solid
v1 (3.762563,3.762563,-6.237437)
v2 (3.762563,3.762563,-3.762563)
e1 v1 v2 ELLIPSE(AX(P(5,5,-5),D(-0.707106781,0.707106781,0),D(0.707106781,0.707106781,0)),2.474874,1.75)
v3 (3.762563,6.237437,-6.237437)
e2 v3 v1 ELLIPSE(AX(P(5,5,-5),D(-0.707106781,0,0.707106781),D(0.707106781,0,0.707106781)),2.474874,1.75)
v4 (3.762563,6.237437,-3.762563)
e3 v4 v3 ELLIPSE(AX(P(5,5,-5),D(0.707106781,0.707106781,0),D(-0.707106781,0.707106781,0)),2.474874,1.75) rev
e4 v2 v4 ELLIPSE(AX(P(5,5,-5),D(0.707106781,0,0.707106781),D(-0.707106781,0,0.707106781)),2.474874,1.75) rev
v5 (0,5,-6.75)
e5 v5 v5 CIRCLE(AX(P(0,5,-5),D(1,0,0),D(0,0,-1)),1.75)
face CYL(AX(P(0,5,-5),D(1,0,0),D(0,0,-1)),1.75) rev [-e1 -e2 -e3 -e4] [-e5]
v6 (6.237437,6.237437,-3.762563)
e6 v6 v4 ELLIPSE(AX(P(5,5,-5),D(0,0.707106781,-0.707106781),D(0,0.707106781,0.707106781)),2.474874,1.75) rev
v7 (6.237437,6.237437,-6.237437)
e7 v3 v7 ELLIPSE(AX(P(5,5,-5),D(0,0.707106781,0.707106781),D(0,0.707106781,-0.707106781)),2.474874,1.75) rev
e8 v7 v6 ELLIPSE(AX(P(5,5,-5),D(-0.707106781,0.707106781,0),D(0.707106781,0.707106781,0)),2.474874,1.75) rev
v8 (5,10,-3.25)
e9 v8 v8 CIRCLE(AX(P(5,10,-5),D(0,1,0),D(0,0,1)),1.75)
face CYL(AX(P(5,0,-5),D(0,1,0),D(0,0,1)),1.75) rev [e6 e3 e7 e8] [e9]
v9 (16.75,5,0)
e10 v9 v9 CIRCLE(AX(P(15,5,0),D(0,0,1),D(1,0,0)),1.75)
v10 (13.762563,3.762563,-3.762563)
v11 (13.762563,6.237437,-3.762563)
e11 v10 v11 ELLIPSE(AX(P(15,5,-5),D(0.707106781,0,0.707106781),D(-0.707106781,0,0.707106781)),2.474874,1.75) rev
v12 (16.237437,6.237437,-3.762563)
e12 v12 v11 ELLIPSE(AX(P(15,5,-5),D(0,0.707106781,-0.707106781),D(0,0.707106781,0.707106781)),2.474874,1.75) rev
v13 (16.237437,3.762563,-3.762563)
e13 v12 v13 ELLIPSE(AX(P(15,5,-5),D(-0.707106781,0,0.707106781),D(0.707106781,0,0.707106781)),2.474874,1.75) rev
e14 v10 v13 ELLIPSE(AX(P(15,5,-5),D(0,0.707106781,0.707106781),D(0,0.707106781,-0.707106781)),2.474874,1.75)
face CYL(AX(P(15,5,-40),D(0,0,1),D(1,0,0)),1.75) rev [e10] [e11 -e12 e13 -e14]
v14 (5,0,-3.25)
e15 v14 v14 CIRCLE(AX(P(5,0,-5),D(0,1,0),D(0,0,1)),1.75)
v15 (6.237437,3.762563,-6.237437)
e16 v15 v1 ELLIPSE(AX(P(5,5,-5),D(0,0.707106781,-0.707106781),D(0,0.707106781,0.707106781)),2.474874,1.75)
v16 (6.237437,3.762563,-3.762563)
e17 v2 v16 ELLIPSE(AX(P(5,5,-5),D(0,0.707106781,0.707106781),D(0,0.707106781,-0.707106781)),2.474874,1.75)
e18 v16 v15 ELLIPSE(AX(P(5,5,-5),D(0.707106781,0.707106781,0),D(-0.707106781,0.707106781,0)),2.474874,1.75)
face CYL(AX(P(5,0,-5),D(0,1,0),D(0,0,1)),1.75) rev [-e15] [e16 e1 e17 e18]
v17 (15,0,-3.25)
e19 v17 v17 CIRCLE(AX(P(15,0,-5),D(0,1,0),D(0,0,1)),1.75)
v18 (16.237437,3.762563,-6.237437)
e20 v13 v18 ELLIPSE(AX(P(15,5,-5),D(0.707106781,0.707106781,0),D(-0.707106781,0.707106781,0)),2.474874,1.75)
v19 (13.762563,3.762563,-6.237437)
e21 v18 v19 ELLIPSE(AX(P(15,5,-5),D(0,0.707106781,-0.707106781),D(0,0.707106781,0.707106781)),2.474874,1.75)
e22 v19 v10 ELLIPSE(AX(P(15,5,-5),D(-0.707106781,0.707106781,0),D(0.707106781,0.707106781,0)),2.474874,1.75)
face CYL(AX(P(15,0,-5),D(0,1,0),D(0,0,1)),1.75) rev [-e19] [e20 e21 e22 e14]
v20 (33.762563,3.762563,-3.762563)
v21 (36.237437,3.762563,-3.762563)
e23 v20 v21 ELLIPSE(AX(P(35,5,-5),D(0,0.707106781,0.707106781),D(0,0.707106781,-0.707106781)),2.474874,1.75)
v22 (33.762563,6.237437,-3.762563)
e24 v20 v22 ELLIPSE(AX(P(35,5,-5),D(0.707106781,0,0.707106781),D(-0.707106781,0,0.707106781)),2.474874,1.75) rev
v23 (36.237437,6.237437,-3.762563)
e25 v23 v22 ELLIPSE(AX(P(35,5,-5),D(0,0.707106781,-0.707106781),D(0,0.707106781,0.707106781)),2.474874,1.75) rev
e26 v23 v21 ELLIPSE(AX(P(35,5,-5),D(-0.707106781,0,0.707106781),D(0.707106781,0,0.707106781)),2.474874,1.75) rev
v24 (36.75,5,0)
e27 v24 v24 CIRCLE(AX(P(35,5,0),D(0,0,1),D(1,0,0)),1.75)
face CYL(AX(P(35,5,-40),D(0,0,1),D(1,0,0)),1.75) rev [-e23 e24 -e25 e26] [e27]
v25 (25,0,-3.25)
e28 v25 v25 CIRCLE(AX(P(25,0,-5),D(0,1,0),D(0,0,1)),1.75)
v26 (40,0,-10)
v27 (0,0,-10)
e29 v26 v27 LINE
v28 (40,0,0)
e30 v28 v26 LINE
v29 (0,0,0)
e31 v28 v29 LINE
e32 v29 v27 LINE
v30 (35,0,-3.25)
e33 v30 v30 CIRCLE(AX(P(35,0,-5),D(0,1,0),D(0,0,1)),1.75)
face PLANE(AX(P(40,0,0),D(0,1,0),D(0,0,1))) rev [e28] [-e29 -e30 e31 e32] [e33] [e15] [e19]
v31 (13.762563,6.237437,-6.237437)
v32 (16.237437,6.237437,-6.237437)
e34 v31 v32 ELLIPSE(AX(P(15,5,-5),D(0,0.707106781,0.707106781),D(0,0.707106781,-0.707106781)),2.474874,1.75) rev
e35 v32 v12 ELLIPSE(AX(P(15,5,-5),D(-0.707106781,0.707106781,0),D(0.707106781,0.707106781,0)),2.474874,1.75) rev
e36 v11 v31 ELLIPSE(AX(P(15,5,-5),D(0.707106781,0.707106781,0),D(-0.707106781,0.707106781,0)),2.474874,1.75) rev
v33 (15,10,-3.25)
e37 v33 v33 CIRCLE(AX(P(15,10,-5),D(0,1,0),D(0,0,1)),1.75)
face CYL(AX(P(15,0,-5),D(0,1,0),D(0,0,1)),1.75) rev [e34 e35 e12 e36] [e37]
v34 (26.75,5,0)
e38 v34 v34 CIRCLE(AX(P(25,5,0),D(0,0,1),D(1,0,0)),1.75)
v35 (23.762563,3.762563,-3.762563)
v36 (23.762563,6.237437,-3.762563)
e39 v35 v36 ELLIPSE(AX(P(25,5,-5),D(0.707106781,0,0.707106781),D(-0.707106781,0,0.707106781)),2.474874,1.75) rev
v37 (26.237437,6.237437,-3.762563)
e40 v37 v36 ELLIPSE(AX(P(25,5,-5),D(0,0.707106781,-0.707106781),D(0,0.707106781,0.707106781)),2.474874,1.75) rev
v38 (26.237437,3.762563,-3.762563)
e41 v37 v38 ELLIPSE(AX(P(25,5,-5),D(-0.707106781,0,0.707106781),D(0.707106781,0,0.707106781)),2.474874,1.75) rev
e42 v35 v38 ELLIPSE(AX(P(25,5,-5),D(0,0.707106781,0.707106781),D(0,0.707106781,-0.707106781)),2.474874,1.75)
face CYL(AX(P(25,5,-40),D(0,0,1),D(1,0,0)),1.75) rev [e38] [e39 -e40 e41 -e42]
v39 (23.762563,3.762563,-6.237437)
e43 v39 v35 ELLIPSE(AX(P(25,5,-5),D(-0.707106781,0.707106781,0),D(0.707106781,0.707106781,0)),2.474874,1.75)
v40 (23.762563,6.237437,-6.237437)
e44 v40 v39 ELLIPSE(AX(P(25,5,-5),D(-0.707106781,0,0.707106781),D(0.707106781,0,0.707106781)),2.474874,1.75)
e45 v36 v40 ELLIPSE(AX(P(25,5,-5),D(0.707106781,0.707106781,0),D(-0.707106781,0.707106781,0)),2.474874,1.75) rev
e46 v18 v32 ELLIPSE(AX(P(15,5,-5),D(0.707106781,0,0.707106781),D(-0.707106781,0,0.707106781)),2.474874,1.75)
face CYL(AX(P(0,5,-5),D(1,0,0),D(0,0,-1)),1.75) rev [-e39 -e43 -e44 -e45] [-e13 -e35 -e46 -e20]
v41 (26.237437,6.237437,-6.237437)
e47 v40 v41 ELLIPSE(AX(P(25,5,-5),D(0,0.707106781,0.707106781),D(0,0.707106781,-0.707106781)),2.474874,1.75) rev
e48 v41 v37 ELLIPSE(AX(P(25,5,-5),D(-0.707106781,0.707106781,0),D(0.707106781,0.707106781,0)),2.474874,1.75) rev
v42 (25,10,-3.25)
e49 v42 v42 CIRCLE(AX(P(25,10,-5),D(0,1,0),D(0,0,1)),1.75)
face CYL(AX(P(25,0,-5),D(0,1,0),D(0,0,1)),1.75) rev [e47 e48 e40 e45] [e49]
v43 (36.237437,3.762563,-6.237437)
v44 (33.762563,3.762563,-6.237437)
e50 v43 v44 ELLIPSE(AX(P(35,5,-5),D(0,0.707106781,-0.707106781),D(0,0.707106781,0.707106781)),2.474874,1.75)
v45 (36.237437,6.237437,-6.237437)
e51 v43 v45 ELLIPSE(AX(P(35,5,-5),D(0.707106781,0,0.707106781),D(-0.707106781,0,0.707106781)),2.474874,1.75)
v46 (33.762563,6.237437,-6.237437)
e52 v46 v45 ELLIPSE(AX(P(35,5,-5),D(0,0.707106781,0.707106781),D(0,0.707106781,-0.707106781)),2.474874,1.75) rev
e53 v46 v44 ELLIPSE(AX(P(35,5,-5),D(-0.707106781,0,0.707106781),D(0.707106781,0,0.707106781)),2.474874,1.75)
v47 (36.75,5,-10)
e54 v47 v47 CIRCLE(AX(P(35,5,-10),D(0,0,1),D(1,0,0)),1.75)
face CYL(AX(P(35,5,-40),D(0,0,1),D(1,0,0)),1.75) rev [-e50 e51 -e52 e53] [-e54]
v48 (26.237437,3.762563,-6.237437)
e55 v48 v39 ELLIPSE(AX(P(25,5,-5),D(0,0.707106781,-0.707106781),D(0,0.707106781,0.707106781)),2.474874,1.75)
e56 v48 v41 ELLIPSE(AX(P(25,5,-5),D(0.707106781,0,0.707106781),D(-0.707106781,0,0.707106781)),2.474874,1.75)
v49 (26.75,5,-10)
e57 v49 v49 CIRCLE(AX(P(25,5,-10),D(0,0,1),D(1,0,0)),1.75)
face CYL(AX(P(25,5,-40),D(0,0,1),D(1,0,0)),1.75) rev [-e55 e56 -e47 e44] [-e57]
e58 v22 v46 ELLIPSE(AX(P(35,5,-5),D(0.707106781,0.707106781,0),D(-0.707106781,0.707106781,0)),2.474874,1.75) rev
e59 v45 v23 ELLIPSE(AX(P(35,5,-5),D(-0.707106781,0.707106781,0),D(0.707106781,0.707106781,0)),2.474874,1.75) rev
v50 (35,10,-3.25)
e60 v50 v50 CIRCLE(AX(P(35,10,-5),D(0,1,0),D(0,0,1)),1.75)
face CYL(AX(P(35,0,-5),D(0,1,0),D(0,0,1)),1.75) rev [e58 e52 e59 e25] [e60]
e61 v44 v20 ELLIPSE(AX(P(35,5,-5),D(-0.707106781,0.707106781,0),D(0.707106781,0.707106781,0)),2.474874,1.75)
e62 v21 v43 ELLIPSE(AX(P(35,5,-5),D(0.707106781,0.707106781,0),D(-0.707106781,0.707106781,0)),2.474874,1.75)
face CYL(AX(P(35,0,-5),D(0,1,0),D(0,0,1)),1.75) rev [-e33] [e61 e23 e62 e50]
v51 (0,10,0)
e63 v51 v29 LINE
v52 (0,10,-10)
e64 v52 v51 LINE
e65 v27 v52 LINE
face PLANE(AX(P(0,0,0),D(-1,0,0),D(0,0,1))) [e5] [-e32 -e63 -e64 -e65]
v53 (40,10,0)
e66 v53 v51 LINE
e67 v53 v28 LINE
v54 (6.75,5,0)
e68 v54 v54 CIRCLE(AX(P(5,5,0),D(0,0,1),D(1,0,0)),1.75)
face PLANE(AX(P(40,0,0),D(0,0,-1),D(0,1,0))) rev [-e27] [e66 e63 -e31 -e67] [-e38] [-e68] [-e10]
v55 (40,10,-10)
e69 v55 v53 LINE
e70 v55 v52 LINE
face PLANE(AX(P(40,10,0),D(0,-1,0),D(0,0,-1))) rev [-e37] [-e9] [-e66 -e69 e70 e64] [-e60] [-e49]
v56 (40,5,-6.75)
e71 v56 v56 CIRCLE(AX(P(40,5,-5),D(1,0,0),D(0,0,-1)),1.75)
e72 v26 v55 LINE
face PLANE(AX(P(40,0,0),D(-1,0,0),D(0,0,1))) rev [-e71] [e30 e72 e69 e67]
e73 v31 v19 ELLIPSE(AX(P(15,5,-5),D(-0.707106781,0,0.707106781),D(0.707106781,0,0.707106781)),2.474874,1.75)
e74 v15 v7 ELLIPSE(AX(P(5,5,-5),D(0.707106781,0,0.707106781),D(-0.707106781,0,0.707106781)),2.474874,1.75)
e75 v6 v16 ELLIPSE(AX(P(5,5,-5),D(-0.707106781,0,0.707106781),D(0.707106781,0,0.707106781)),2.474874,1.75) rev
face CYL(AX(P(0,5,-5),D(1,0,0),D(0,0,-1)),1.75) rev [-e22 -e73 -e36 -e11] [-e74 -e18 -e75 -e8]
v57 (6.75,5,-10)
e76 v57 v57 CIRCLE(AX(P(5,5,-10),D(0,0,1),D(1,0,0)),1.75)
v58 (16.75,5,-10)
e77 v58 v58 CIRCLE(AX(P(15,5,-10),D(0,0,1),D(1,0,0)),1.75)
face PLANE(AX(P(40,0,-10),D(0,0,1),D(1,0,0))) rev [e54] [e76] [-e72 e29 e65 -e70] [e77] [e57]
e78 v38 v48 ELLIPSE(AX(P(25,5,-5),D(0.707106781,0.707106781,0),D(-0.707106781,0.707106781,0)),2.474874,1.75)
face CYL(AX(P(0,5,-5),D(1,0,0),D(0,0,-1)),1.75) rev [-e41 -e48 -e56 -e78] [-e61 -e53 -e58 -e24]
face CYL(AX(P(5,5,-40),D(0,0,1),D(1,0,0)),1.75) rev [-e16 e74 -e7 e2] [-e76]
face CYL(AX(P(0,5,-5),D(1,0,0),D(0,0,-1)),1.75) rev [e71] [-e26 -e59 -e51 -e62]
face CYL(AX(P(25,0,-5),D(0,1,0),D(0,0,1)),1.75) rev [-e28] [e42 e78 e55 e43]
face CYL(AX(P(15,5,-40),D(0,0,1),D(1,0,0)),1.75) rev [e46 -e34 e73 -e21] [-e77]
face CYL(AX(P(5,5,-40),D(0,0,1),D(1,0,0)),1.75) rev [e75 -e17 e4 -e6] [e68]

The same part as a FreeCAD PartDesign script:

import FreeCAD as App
import Part
import Sketcher
from FreeCAD import Vector


def add_polygon(sketch, points):
    """Adds a closed chain of lines whose ends are joined by coincident constraints."""
    first, n = sketch.GeometryCount, len(points)
    for a, b in zip(points, points[1:] + points[:1]):
        sketch.addGeometry(Part.LineSegment(App.Vector(*a, 0), App.Vector(*b, 0)), False)
    for i in range(n):
        sketch.addConstraint(Sketcher.Constraint("Coincident", first + i, 2, first + (i + 1) % n, 1))

doc = App.newDocument("Part")
body = doc.addObject("PartDesign::Body", "Body")

# Sketch on YZ plane
sketch1 = body.newObject("Sketcher::SketchObject", "Sketch")
sketch1.AttachmentSupport = (doc.getObject("YZ_Plane"), [""])
sketch1.MapMode = "FlatFace"
add_polygon(sketch1, [(10, 0), (0, 0), (0, -10), (10, -10)])  # lines 0-3
sketch1.addConstraint(Sketcher.Constraint("Horizontal", 0))
sketch1.addConstraint(Sketcher.Constraint("Vertical", 1))
sketch1.addConstraint(Sketcher.Constraint("Horizontal", 2))
sketch1.addConstraint(Sketcher.Constraint("Vertical", 3))
sketch1.addConstraint(Sketcher.Constraint("Coincident", 0, 2, -1, 1))
sketch1.addConstraint(Sketcher.Constraint("Equal", 2, 1))
sketch1.addConstraint(Sketcher.Constraint("DistanceX", 0, 2, 0, 1, 10.0))
pad1 = body.newObject("PartDesign::Pad", "Pad")
pad1.Profile = sketch1
pad1.Length = 40

# Sketch on XZ plane
sketch2 = body.newObject("Sketcher::SketchObject", "Sketch001")
sketch2.AttachmentSupport = (doc.getObject("XZ_Plane"), [""])
sketch2.MapMode = "FlatFace"
sketch2.AttachmentOffset = App.Placement(Vector(0, 0, -10), App.Rotation())
sketch2.addGeometry(Part.Circle(Vector(5, -5, 0), Vector(0, 0, 1), 1.8), False)
sketch2.addGeometry(Part.Circle(Vector(15, -5, 0), Vector(0, 0, 1), 1.8), False)
sketch2.addGeometry(Part.Circle(Vector(25, -5, 0), Vector(0, 0, 1), 1.8), False)
sketch2.addGeometry(Part.Circle(Vector(35, -5, 0), Vector(0, 0, 1), 1.8), False)
sketch2.addConstraint(Sketcher.Constraint("Equal", 0, 1))
sketch2.addConstraint(Sketcher.Constraint("Equal", 1, 2))
sketch2.addConstraint(Sketcher.Constraint("Equal", 2, 3))
sketch2.addConstraint(Sketcher.Constraint("Horizontal", 0, 3, 1, 3))
sketch2.addConstraint(Sketcher.Constraint("Horizontal", 1, 3, 2, 3))
sketch2.addConstraint(Sketcher.Constraint("Horizontal", 2, 3, 3, 3))
sketch2.addConstraint(Sketcher.Constraint("Diameter", 0, 3.5))
sketch2.addConstraint(Sketcher.Constraint("DistanceX", -1, 1, 0, 3, 5.0))
sketch2.addConstraint(Sketcher.Constraint("DistanceY", 0, 3, -1, 1, 5.0))
sketch2.addConstraint(Sketcher.Constraint("DistanceX", -1, 1, 1, 3, 15.0))
sketch2.addConstraint(Sketcher.Constraint("DistanceX", -1, 1, 2, 3, 25.0))
sketch2.addConstraint(Sketcher.Constraint("DistanceX", -1, 1, 3, 3, 35.0))
pocket1 = body.newObject("PartDesign::Pocket", "Pocket")
pocket1.Profile = sketch2
pocket1.Type = "ThroughAll"
pocket1.Reversed = True

# Sketch on XY plane
sketch3 = body.newObject("Sketcher::SketchObject", "Sketch002")
sketch3.AttachmentSupport = (doc.getObject("XY_Plane"), [""])
sketch3.MapMode = "FlatFace"
sketch3.addGeometry(Part.Circle(Vector(5, 5, 0), Vector(0, 0, 1), 1.8), False)
sketch3.addGeometry(Part.Circle(Vector(15, 5, 0), Vector(0, 0, 1), 1.8), False)
sketch3.addGeometry(Part.Circle(Vector(25, 5, 0), Vector(0, 0, 1), 1.8), False)
sketch3.addGeometry(Part.Circle(Vector(35, 5, 0), Vector(0, 0, 1), 1.8), False)
sketch3.addConstraint(Sketcher.Constraint("Equal", 0, 1))
sketch3.addConstraint(Sketcher.Constraint("Equal", 1, 2))
sketch3.addConstraint(Sketcher.Constraint("Equal", 2, 3))
sketch3.addConstraint(Sketcher.Constraint("Horizontal", 0, 3, 1, 3))
sketch3.addConstraint(Sketcher.Constraint("Horizontal", 1, 3, 2, 3))
sketch3.addConstraint(Sketcher.Constraint("Horizontal", 2, 3, 3, 3))
sketch3.addConstraint(Sketcher.Constraint("Diameter", 0, 3.5))
sketch3.addConstraint(Sketcher.Constraint("DistanceX", -1, 1, 0, 3, 5.0))
sketch3.addConstraint(Sketcher.Constraint("DistanceY", -1, 1, 0, 3, 5.0))
sketch3.addConstraint(Sketcher.Constraint("DistanceX", -1, 1, 1, 3, 15.0))
sketch3.addConstraint(Sketcher.Constraint("DistanceX", -1, 1, 2, 3, 25.0))
sketch3.addConstraint(Sketcher.Constraint("DistanceX", -1, 1, 3, 3, 35.0))
pocket2 = body.newObject("PartDesign::Pocket", "Pocket001")
pocket2.Profile = sketch3
pocket2.Length = 40

# Sketch on YZ plane
sketch4 = body.newObject("Sketcher::SketchObject", "Sketch003")
sketch4.AttachmentSupport = (doc.getObject("YZ_Plane"), [""])
sketch4.MapMode = "FlatFace"
sketch4.AttachmentOffset = App.Placement(Vector(0, 0, 40), App.Rotation())
sketch4.addGeometry(Part.Circle(Vector(5, -5, 0), Vector(0, 0, 1), 1.8), False)
sketch4.addConstraint(Sketcher.Constraint("Diameter", 0, 3.5))
sketch4.addConstraint(Sketcher.Constraint("DistanceX", -1, 1, 0, 3, 5.0))
sketch4.addConstraint(Sketcher.Constraint("DistanceY", 0, 3, -1, 1, 5.0))
pocket3 = body.newObject("PartDesign::Pocket", "Pocket002")
pocket3.Profile = sketch4
pocket3.Length = 40

doc.recompute()
